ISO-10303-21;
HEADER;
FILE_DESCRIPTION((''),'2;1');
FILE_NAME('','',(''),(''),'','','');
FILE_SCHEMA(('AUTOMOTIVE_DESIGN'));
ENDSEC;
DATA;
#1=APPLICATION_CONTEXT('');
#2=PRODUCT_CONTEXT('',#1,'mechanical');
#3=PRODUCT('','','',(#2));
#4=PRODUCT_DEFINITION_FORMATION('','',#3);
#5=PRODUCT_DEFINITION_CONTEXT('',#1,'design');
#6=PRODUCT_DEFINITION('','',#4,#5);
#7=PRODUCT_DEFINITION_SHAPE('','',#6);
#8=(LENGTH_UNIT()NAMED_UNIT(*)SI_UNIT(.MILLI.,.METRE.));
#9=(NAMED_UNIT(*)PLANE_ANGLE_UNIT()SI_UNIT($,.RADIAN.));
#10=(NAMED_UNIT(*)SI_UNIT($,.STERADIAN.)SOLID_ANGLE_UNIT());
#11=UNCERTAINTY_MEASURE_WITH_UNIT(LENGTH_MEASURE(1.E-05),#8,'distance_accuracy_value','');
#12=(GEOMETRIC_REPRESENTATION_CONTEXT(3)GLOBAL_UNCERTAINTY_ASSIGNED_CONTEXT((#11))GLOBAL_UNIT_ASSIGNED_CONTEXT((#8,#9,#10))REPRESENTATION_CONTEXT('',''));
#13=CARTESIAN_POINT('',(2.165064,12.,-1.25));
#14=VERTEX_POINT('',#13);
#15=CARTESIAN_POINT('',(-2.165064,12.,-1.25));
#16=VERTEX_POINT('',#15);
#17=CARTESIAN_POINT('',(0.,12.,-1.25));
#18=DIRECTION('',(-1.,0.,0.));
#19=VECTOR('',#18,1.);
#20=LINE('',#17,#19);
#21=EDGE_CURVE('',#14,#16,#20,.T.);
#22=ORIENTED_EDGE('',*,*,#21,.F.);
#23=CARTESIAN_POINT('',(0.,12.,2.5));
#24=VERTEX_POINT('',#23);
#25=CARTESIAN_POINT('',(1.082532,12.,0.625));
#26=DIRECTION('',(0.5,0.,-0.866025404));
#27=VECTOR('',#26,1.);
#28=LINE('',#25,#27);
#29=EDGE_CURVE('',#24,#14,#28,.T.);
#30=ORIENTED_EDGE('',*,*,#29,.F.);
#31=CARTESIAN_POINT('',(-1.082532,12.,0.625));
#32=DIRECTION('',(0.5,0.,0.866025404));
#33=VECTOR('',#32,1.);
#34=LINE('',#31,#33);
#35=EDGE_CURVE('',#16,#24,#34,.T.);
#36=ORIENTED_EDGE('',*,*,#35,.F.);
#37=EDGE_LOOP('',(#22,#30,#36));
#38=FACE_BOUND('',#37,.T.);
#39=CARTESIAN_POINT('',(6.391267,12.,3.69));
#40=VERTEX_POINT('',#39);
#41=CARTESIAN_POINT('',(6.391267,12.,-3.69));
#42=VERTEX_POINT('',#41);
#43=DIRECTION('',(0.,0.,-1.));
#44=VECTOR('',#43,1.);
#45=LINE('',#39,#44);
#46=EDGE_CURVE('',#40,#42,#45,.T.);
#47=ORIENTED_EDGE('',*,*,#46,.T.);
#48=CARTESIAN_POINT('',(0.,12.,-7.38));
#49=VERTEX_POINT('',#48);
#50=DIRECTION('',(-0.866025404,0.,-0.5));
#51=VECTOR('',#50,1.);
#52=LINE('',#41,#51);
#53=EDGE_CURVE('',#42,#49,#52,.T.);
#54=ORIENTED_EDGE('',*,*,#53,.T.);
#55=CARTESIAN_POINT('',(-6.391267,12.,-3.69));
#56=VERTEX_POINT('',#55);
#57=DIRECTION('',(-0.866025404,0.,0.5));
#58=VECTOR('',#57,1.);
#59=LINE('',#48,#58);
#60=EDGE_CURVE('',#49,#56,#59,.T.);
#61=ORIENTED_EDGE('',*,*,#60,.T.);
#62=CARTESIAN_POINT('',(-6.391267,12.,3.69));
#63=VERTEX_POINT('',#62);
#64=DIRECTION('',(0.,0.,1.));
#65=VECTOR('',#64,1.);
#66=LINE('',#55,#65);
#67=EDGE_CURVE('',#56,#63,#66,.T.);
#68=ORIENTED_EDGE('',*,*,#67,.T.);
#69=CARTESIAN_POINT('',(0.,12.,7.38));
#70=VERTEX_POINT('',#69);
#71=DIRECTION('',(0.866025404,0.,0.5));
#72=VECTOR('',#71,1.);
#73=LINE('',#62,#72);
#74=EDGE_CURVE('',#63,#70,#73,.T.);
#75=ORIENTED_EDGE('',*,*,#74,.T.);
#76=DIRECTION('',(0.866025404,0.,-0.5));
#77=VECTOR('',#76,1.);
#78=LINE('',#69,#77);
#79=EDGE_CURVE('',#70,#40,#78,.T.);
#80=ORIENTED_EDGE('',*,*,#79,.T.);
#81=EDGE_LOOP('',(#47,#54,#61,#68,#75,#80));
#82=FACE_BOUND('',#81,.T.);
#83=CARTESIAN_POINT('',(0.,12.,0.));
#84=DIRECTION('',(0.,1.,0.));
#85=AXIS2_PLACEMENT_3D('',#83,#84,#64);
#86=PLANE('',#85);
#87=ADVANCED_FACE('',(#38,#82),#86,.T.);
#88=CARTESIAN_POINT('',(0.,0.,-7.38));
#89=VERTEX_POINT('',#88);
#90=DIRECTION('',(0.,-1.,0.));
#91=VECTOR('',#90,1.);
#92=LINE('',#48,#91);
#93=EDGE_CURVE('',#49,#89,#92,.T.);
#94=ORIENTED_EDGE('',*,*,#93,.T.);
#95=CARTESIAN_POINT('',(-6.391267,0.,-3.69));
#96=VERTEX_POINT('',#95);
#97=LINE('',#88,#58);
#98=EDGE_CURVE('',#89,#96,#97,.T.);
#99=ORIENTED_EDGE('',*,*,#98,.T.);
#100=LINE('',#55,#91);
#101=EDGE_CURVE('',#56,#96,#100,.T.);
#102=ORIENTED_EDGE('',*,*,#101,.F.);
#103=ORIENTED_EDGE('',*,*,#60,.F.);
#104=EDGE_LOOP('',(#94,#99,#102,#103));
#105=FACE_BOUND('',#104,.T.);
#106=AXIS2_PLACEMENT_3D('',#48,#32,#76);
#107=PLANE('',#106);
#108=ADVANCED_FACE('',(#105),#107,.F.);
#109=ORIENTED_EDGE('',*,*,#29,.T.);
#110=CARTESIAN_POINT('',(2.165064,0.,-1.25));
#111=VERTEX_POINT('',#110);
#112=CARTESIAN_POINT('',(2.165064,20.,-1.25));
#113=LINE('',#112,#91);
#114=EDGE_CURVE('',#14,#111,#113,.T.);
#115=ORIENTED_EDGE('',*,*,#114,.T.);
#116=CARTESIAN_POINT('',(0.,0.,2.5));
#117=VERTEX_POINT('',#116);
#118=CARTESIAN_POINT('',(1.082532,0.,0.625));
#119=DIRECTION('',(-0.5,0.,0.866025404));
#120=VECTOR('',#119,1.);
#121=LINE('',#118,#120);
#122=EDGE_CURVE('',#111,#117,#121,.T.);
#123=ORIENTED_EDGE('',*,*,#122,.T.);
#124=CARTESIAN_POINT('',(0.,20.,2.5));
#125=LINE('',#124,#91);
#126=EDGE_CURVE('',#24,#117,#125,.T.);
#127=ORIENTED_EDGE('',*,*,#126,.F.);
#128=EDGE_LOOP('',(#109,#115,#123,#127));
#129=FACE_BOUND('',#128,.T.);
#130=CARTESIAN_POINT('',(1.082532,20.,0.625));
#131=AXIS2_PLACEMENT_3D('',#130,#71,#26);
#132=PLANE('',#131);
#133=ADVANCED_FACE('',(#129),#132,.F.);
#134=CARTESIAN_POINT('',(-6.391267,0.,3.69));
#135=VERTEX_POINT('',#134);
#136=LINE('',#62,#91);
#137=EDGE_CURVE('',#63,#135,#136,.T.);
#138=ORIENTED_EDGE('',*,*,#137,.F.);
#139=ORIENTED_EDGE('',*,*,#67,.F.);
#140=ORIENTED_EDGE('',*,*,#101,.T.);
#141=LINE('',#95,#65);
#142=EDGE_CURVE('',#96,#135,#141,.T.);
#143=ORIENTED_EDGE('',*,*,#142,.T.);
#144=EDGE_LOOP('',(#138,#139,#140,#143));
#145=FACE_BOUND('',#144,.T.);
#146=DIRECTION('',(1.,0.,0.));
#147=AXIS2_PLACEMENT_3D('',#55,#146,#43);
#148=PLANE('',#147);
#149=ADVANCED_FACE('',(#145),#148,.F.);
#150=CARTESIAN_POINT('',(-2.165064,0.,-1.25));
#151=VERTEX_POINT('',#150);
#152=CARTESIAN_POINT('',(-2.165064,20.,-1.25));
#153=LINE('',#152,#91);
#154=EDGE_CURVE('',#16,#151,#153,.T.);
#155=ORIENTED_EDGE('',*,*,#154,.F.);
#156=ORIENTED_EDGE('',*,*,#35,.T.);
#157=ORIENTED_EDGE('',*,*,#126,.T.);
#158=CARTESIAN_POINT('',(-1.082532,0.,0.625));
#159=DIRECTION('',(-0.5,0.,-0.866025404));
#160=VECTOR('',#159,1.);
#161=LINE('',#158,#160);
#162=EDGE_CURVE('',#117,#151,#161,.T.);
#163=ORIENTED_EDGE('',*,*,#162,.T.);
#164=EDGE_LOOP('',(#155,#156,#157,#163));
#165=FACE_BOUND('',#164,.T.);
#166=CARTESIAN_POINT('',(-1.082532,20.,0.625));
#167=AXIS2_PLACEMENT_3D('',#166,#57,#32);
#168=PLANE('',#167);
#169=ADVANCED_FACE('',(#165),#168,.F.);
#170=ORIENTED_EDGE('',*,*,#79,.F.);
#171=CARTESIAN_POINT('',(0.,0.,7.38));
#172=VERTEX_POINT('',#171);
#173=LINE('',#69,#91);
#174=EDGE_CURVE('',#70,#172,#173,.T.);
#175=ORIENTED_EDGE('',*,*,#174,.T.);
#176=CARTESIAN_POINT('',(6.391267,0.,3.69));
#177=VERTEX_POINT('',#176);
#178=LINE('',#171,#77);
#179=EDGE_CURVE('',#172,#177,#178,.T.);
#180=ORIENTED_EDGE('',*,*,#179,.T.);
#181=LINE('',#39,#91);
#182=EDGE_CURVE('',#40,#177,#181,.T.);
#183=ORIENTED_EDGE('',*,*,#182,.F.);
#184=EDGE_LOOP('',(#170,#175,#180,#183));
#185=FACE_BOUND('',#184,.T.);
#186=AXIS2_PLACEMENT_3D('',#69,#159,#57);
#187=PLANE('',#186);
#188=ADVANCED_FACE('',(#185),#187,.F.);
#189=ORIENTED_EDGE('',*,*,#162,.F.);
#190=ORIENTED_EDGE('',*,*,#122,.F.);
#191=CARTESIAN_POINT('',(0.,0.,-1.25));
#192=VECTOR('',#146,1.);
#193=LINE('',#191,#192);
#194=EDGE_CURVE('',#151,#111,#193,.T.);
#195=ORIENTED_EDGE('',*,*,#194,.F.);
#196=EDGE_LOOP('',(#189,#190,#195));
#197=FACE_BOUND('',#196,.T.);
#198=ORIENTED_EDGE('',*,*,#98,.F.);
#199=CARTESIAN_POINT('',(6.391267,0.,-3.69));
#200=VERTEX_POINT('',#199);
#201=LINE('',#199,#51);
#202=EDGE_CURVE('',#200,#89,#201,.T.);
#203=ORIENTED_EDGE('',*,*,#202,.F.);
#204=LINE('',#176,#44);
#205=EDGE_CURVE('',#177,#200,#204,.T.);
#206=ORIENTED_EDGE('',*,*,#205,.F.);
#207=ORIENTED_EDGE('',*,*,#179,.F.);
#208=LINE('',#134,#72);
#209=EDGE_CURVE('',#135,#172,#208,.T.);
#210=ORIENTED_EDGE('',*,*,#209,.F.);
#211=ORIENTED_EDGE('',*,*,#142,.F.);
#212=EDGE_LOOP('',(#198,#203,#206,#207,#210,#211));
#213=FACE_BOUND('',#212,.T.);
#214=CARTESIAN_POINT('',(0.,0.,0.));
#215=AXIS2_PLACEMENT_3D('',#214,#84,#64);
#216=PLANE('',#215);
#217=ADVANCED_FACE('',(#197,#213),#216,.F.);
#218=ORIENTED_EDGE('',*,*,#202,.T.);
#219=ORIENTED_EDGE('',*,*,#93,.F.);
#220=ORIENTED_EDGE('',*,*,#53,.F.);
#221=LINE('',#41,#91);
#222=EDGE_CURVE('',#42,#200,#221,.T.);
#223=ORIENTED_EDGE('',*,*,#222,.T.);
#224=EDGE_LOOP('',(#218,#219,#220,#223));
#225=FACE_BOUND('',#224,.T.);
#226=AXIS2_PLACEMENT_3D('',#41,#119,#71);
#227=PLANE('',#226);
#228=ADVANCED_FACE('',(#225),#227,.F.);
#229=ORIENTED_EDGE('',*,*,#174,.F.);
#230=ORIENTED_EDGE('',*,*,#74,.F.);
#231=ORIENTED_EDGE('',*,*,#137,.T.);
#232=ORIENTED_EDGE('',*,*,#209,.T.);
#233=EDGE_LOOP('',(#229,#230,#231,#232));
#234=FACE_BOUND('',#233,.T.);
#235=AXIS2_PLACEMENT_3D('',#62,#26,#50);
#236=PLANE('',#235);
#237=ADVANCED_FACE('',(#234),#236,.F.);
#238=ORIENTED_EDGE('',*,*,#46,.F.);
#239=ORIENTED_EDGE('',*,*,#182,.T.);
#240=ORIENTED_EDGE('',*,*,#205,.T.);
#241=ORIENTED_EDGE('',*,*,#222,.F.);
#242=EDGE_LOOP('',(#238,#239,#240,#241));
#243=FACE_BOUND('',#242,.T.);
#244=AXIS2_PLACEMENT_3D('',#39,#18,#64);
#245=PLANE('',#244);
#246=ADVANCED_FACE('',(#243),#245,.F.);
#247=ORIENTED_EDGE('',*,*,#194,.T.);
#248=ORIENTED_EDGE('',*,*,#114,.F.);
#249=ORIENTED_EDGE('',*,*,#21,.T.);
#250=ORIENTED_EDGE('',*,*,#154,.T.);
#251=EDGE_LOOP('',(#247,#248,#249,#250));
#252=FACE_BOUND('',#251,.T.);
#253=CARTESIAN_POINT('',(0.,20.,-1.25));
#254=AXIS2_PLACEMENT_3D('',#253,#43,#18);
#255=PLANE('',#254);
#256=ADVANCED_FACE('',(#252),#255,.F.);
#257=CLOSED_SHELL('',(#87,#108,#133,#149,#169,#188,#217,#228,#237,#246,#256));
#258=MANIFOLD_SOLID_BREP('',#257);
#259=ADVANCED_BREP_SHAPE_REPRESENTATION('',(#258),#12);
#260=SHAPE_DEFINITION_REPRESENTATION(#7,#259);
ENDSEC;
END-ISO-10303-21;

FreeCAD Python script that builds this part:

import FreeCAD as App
import Part
import Sketcher
from FreeCAD import Vector
Q = App.Units.Quantity


def add_polygon(sketch, points):
    """Adds a closed chain of lines whose ends are joined by coincident constraints."""
    first, n = sketch.GeometryCount, len(points)
    for a, b in zip(points, points[1:] + points[:1]):
        sketch.addGeometry(Part.LineSegment(App.Vector(*a, 0), App.Vector(*b, 0)), False)
    for i in range(n):
        sketch.addConstraint(Sketcher.Constraint("Coincident", first + i, 2, first + (i + 1) % n, 1))

doc = App.newDocument("Part")
params = doc.addObject("Spreadsheet::Sheet", "Params")
for row, (alias, value) in enumerate([
    ("sketch1_height", "7.38 mm"),
    ("sketch1_length", "7.38 mm"),
    ("pad1_length", "12 mm"),
    ("pocket1_length", "20 mm"),
], start=1):
    params.set(f"A{row}", alias)
    params.set(f"B{row}", "=" + value)
    params.setAlias(f"B{row}", alias)

body = doc.addObject("PartDesign::Body", "Body")

sketch1 = doc.addObject("Sketcher::SketchObject", "Sketch")
body.addObject(sketch1)
sketch1.AttachmentSupport = (doc.XZ_Plane, [""])
sketch1.MapMode = "FlatFace"
add_polygon(sketch1, [(0, -7.38), (-6.391267, -3.69), (-6.391267, 3.69), (0, 7.38), (6.391267, 3.69), (6.391267, -3.69)])
sketch1.addConstraint([
    Sketcher.Constraint("Vertical", 1),
    Sketcher.Constraint("Vertical", 4),
    Sketcher.Constraint("Symmetric", 0, 2, 3, 2, -1, 1),
    Sketcher.Constraint("Symmetric", 2, 2, 5, 2, -1, 1),
    Sketcher.Constraint("PointOnObject", 2, 2, -2),
    Sketcher.Constraint("Parallel", 2, 5),
    Sketcher.Constraint("Horizontal", 1, 2, 3, 2),
    Sketcher.Constraint("Angle", 0, Q("150 deg")),
    Sketcher.Constraint("DistanceY", 1, 1, 1, 2, 7.38),
    Sketcher.Constraint("Distance", 0, 7.38),
])
sketch1.setExpression("Constraints[14]", "Params.sketch1_height")
sketch1.setExpression("Constraints[15]", "Params.sketch1_length")
pad1 = doc.addObject("PartDesign::Pad", "Pad")
body.addObject(pad1)
pad1.Profile = sketch1
pad1.setExpression("Length", "Params.pad1_length")
pad1.Reversed = True

sketch2 = doc.addObject("Sketcher::SketchObject", "Sketch001")
body.addObject(sketch2)
sketch2.AttachmentSupport = (doc.XZ_Plane, [""])
sketch2.MapMode = "FlatFace"
add_polygon(sketch2, [(-2.165064, -1.25), (2.165064, -1.25), (0, 2.5)])
sketch2.addConstraint([
    Sketcher.Constraint("Horizontal", 0),
    Sketcher.Constraint("PointOnObject", 1, 2, -2),
    Sketcher.Constraint("Equal", 1, 2),
    Sketcher.Constraint("Angle", 1, Q("120 deg")),
    Sketcher.Constraint("DistanceY", -1, 1, 1, 2, 2.5),
    Sketcher.Constraint("DistanceY", 0, 2, -1, 1, 1.25),
])
pocket1 = doc.addObject("PartDesign::Pocket", "Pocket")
body.addObject(pocket1)
pocket1.Profile = sketch2
pocket1.setExpression("Length", "Params.pocket1_length")

doc.recompute()
